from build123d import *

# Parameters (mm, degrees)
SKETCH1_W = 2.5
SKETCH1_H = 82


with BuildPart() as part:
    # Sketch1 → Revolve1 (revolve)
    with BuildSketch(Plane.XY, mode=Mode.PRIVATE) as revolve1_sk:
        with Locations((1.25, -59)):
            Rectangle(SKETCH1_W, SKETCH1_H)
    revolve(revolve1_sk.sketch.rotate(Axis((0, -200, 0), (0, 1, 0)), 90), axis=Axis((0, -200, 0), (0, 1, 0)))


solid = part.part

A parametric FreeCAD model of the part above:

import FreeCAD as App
import Part
import Sketcher

V = App.Vector
Q = App.Units.Quantity

doc = App.newDocument("Part")
body = doc.addObject("PartDesign::Body", "Body")

sketch1 = body.newObject("Sketcher::SketchObject", "Sketch")
sketch1.AttachmentSupport = (doc.getObject("XY_Plane"), [""])
sketch1.MapMode = "FlatFace"
sketch1.addGeometry([
    Part.LineSegment(V(0, -18, 0), V(0, -100, 0)),
    Part.LineSegment(V(0, -100, 0), V(2.5, -100, 0)),
    Part.LineSegment(V(2.5, -100, 0), V(2.5, -18, 0)),
    Part.LineSegment(V(2.5, -18, 0), V(0, -18, 0)),
], False)
sketch1.addConstraint([
    Sketcher.Constraint("Coincident", 0, 2, 1, 1),
    Sketcher.Constraint("Coincident", 1, 2, 2, 1),
    Sketcher.Constraint("Coincident", 2, 2, 3, 1),
    Sketcher.Constraint("Coincident", 3, 2, 0, 1),
    Sketcher.Constraint("Vertical", 0),
    Sketcher.Constraint("Horizontal", 1),
    Sketcher.Constraint("Vertical", 2),
    Sketcher.Constraint("Horizontal", 3),
    Sketcher.Constraint("PointOnObject", 0, 2, -2),
    Sketcher.Constraint("DistanceY", 0, 2, 0, 1, Q("82 mm")),
    Sketcher.Constraint("DistanceX", 1, 1, 1, 2, Q("2.5 mm")),
    Sketcher.Constraint("DistanceY", 0, 2, -1, 1, Q("100 mm")),
])
revolution = body.newObject("PartDesign::Revolution", "Revolution")
revolution.Profile = sketch1
revolution.ReferenceAxis = (sketch1, ["V_Axis"])
revolution.Angle = 360

doc.recompute()
